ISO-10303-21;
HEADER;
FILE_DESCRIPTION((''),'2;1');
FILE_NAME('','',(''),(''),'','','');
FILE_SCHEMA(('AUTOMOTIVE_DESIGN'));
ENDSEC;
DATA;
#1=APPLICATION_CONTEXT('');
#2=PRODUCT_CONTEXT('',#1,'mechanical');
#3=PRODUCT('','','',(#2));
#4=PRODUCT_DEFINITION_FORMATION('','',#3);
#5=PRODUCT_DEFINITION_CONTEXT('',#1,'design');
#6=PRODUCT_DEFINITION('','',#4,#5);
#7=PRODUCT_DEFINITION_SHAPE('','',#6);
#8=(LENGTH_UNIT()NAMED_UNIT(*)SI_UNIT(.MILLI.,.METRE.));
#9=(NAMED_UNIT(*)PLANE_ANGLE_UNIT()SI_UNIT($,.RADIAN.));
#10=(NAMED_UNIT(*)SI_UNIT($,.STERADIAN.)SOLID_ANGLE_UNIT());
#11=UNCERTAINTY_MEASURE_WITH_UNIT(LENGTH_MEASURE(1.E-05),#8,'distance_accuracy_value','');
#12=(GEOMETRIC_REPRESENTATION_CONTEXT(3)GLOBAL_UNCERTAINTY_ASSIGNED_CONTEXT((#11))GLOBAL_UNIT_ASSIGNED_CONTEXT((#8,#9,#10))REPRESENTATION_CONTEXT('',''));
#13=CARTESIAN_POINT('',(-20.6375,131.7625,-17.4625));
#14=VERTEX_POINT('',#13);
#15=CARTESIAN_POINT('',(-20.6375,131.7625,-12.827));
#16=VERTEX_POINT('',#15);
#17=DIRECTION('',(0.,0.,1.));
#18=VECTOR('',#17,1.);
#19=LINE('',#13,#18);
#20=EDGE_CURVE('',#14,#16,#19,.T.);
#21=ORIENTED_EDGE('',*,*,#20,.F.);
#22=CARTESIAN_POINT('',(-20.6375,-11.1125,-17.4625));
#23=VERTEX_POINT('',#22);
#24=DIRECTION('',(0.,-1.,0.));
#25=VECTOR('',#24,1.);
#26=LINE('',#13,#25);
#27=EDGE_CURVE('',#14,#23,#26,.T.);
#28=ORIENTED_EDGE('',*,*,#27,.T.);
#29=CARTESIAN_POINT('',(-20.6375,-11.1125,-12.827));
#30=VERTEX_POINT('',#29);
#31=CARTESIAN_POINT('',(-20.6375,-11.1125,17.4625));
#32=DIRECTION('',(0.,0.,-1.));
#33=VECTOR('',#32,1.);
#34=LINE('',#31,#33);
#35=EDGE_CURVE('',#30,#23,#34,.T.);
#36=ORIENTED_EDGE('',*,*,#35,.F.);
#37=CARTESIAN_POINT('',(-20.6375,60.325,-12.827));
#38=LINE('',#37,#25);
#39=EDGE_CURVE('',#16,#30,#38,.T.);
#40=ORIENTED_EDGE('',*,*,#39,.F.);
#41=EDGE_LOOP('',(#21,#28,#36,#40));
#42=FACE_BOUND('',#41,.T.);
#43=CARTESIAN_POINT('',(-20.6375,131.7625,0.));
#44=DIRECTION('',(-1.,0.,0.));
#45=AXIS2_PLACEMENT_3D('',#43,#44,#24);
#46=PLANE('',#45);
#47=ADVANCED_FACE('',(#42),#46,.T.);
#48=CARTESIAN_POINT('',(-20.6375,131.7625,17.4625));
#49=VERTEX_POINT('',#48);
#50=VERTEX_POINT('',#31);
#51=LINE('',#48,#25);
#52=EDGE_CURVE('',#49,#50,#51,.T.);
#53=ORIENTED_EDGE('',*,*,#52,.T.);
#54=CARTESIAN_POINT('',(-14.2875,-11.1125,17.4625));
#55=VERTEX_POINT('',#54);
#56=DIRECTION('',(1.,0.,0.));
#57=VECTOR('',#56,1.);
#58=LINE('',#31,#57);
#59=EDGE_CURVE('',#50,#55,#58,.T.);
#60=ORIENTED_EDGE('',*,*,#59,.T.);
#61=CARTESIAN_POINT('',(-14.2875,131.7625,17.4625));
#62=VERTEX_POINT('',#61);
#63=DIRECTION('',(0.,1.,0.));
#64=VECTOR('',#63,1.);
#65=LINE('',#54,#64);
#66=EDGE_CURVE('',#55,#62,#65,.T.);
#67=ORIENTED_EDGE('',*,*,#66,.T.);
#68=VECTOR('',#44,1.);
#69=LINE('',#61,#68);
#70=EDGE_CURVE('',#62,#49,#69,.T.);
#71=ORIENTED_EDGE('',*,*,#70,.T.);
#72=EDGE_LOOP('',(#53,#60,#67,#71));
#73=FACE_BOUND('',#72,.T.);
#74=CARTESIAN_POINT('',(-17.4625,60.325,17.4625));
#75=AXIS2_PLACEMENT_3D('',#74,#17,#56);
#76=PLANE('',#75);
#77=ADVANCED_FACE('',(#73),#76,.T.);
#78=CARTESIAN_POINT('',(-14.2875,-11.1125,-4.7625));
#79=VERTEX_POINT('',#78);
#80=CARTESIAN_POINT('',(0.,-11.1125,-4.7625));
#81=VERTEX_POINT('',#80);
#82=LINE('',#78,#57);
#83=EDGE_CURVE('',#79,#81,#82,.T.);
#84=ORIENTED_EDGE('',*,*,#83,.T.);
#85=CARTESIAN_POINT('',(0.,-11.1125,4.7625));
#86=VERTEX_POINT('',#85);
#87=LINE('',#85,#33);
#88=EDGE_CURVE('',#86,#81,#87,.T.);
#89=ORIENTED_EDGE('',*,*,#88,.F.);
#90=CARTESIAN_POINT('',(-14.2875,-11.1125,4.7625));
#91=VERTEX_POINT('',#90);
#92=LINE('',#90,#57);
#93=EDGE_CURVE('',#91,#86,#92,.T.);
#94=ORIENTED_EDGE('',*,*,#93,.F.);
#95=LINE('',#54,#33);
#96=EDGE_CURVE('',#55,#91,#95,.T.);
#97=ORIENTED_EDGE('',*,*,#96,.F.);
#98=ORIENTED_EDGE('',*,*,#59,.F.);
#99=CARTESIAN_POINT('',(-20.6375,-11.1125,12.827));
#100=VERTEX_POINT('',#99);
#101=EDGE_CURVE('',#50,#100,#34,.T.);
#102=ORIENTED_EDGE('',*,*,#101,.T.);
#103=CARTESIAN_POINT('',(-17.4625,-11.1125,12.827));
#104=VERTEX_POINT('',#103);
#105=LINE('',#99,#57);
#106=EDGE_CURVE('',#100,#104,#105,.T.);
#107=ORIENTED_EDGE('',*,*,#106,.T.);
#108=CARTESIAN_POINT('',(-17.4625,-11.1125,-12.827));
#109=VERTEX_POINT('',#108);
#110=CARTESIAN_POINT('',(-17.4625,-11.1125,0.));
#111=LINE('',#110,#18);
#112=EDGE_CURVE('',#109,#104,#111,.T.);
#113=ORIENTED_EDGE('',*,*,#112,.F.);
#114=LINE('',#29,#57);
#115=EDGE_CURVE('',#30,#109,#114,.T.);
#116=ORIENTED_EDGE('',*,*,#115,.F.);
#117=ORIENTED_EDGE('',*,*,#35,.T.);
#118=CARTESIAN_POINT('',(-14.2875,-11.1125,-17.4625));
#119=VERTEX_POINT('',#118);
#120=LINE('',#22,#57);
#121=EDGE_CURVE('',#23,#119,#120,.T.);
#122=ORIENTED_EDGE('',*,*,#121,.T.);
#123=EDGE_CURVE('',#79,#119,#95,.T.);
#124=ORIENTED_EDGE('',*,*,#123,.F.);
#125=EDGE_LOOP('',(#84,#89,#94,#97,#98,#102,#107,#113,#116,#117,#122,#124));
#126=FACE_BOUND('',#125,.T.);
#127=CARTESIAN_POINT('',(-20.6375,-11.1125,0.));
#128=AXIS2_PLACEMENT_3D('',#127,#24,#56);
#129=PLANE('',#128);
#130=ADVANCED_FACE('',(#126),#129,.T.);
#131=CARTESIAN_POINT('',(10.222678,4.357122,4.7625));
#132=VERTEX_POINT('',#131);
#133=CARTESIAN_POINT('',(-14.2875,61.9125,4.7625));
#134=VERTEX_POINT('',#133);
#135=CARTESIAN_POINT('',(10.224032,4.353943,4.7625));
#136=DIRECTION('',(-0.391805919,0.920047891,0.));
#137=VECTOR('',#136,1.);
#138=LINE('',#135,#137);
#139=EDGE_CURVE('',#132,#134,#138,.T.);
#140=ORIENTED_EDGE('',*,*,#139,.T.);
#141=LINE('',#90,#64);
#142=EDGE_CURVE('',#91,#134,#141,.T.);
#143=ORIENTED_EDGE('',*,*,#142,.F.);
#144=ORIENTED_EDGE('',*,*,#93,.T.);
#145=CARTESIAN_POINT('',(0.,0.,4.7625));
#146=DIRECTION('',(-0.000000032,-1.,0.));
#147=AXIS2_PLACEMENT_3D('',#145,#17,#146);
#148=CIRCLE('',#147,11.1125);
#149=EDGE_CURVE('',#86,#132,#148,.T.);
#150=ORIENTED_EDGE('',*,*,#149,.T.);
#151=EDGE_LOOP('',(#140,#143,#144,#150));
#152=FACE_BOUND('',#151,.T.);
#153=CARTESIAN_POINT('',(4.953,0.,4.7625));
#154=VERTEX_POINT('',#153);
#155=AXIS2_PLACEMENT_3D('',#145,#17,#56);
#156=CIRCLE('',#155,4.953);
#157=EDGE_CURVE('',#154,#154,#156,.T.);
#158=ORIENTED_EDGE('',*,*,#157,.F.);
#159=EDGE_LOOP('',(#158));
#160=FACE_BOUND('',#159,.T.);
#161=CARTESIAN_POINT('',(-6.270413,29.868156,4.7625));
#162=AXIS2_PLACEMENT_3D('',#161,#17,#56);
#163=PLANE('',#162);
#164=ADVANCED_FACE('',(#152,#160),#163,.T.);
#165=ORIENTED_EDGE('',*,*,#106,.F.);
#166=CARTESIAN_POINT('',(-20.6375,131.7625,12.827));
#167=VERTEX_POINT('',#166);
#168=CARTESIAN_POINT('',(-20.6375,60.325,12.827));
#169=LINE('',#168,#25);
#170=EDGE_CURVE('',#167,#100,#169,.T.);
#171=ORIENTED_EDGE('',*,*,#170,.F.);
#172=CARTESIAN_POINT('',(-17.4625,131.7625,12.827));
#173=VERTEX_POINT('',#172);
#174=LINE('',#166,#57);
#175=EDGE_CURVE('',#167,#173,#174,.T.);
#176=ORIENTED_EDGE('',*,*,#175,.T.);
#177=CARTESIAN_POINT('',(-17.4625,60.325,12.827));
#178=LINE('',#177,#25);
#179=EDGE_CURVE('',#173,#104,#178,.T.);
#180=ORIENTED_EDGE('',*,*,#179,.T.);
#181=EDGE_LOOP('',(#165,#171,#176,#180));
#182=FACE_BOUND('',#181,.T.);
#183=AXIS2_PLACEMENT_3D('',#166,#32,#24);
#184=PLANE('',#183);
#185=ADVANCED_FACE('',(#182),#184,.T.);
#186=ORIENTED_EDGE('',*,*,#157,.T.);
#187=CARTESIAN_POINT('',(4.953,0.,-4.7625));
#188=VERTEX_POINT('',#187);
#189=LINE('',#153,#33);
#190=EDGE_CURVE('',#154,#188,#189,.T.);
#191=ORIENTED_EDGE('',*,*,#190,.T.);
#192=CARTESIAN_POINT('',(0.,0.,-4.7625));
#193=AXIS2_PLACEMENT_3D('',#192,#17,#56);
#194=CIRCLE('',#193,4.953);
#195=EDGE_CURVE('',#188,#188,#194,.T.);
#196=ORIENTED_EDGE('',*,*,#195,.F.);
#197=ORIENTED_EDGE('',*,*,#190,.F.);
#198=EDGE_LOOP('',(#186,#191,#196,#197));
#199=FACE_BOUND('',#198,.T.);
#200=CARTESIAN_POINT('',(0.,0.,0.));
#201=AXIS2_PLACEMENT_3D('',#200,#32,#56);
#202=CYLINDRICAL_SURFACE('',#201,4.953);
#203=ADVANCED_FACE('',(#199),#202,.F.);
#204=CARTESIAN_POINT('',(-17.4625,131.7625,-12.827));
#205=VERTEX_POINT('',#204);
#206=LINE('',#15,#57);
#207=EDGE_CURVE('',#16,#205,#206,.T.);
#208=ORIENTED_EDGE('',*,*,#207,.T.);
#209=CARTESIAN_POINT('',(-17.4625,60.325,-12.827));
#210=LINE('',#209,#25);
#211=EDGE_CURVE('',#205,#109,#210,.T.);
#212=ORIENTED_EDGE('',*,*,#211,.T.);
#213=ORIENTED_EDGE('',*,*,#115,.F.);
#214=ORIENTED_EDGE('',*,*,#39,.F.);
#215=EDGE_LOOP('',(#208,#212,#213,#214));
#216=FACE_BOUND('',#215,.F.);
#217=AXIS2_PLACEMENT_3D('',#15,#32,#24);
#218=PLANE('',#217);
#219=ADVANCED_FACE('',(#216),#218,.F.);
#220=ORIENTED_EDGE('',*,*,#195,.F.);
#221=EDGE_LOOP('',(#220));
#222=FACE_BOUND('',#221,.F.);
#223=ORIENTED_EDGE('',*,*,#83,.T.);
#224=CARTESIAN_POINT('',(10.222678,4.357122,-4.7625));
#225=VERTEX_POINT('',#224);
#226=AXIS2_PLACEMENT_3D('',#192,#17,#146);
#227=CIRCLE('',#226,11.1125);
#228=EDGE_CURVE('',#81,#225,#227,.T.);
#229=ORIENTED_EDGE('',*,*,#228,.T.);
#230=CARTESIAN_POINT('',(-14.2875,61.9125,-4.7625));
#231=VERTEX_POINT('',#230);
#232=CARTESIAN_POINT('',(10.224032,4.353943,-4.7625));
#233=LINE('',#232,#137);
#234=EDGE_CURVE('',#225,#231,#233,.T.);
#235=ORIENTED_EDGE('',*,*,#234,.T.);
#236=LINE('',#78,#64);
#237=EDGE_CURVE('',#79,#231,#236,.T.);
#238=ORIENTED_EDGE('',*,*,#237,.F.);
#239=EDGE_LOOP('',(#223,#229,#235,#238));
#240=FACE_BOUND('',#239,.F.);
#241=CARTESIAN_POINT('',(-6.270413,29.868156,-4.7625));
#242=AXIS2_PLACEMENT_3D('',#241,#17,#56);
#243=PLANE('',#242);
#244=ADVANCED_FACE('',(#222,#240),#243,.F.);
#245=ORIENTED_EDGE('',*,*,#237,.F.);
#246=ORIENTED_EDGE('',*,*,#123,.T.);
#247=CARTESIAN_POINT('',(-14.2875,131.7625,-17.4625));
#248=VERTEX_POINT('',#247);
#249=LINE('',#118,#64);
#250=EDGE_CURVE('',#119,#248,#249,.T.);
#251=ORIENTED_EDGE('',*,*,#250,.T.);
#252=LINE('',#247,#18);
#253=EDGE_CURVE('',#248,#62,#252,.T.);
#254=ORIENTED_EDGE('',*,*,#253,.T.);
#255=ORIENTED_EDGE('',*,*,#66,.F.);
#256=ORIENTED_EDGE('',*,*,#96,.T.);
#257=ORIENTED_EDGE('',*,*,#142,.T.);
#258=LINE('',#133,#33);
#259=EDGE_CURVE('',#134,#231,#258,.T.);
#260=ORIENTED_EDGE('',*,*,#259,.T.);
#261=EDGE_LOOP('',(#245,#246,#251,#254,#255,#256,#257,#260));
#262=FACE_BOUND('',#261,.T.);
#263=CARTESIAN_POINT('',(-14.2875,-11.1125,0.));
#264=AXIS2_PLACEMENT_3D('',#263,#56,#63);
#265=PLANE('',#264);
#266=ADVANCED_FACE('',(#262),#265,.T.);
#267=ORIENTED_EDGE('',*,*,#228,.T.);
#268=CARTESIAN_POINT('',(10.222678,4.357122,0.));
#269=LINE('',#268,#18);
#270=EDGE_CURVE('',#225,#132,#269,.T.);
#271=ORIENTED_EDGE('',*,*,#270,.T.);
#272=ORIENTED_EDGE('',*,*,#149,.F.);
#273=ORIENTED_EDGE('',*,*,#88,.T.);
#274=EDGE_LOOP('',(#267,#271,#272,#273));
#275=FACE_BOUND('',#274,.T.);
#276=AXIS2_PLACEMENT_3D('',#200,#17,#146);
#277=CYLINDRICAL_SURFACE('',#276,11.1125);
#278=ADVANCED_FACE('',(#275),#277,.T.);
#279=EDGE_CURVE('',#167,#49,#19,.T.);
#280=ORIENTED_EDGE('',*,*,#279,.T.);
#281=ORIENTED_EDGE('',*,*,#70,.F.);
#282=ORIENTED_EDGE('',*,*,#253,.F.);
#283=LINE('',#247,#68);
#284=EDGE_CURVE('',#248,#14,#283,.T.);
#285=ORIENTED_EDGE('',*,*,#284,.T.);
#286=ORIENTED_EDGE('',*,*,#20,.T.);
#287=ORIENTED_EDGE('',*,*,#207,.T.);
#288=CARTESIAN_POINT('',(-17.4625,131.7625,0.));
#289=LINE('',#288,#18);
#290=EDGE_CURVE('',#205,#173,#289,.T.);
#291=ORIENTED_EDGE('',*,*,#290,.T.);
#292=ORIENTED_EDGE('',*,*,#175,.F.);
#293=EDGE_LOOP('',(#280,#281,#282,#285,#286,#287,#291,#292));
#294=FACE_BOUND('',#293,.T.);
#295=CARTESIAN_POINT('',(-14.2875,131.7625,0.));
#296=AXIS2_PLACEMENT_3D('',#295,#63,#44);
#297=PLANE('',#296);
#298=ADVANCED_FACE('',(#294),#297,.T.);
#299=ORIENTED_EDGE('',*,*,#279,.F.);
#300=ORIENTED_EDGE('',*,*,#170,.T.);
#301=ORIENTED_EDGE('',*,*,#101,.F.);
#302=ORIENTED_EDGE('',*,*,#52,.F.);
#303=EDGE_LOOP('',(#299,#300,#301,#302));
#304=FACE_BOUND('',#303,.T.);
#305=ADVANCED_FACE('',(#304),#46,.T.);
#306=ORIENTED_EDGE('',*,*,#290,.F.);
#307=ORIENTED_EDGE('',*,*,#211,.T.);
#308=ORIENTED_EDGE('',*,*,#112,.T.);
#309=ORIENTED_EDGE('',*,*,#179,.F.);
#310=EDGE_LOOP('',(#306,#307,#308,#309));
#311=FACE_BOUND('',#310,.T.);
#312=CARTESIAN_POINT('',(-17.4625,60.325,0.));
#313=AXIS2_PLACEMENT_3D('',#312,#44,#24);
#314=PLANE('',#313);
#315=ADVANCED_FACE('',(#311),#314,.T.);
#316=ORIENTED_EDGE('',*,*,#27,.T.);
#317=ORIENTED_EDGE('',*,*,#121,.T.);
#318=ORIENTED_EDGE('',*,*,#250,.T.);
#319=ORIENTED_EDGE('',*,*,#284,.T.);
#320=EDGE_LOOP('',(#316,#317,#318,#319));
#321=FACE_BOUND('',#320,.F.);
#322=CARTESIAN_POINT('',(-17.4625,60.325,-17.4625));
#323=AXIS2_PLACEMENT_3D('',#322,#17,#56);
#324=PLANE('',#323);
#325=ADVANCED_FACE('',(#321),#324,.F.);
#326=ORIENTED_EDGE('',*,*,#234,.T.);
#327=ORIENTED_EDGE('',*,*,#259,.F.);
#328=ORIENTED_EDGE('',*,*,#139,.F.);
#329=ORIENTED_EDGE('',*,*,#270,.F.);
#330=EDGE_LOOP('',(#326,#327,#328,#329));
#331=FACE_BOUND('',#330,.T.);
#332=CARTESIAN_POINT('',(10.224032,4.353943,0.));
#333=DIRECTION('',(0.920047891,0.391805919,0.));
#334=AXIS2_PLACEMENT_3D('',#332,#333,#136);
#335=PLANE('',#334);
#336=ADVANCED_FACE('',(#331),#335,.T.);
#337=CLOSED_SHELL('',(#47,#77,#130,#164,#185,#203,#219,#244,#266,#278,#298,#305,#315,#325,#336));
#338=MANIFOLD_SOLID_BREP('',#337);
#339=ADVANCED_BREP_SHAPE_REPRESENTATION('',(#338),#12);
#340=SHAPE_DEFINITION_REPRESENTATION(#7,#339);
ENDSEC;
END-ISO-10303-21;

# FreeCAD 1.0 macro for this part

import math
import FreeCAD as App
import Part
import Sketcher
Q = App.Units.Quantity

doc = App.newDocument("Part")
body = doc.addObject("PartDesign::Body", "Body")

sketch1 = body.newObject("Sketcher::SketchObject", "Sketch")
sketch1.AttachmentSupport = (doc.getObject("XY_Plane"), [""])
sketch1.MapMode = "FlatFace"
sketch1.addGeometry([
    Part.ArcOfCircle(Part.Circle(App.Vector(0.000001, 0.000001, 0), App.Vector(0, 0, 1), 11.112499), math.radians(28.713426), math.radians(90.000004)),
    Part.LineSegment(App.Vector(0, 11.1125, 0), App.Vector(-14.2875, 11.1125, 0)),
    Part.LineSegment(App.Vector(-14.2875, 11.1125, 0), App.Vector(-14.2875, -11.1125, 0)),
    Part.LineSegment(App.Vector(-14.2875, -11.1125, 0), App.Vector(0, -11.1125, 0)),
    Part.ArcOfCircle(Part.Circle(App.Vector(0, 0, 0), App.Vector(0, 0, 1), 11.1125), math.radians(-90.000002), math.radians(28.713429)),
    Part.Circle(App.Vector(0, 0, 0), App.Vector(0, 0, 1), 4.953),
], False)
sketch1.addConstraint([
    Sketcher.Constraint("Tangent", 0, 2, 1, 1),
    Sketcher.Constraint("Coincident", 1, 2, 2, 1),
    Sketcher.Constraint("Coincident", 2, 2, 3, 1),
    Sketcher.Constraint("Tangent", 3, 2, 4, 1),
    Sketcher.Constraint("Tangent", 4, 2, 0, 1),
    Sketcher.Constraint("Horizontal", 1),
    Sketcher.Constraint("Vertical", 2),
    Sketcher.Constraint("Horizontal", 3),
    Sketcher.Constraint("Coincident", 0, 3, -1, 1),
    Sketcher.Constraint("Coincident", 5, 3, -1, 1),
    Sketcher.Constraint("Equal", 0, 4),
    Sketcher.Constraint("Diameter", 5, Q("0.39 in")),
    Sketcher.Constraint("Radius", 0, Q("0.4375 in")),
    Sketcher.Constraint("DistanceX", 1, 2, 1, 1, Q("0.5625 in")),
    Sketcher.Constraint("DistanceY", 4, 3, 4, 2, Q("5.338768 mm")),
])
pad1 = body.newObject("PartDesign::Pad", "Pad")
pad1.Profile = sketch1
pad1.Length = Q("0.375 in")
pad1.Midplane = True

sketch2 = body.newObject("Sketcher::SketchObject", "Sketch001")
sketch2.AttachmentSupport = (doc.getObject("XY_Plane"), [""])
sketch2.MapMode = "FlatFace"
sketch2.addGeometry([
    Part.LineSegment(App.Vector(-14.2875, -11.1125, 0), App.Vector(-14.2875, 131.7625, 0)),
    Part.LineSegment(App.Vector(-14.2875, 131.7625, 0), App.Vector(-20.6375, 131.7625, 0)),
    Part.LineSegment(App.Vector(-20.6375, 131.7625, 0), App.Vector(-20.6375, -11.1125, 0)),
    Part.LineSegment(App.Vector(-20.6375, -11.1125, 0), App.Vector(-14.2875, -11.1125, 0)),
], False)
sketch2.addConstraint([
    Sketcher.Constraint("Coincident", 0, 2, 1, 1),
    Sketcher.Constraint("Coincident", 1, 2, 2, 1),
    Sketcher.Constraint("Coincident", 2, 2, 3, 1),
    Sketcher.Constraint("Coincident", 3, 2, 0, 1),
    Sketcher.Constraint("Vertical", 0),
    Sketcher.Constraint("Horizontal", 1),
    Sketcher.Constraint("Vertical", 2),
    Sketcher.Constraint("Horizontal", 3),
    Sketcher.Constraint("DistanceX", 1, 2, 1, 1, Q("0.25 in")),
    Sketcher.Constraint("DistanceY", 0, 1, 0, 2, Q("5.625 in")),
    Sketcher.Constraint("DistanceX", 0, 2, -1, 1, Q("0.5625 in")),
    Sketcher.Constraint("DistanceY", -1, 1, 0, 2, Q("5.1875 in")),
])
pad2 = body.newObject("PartDesign::Pad", "Pad001")
pad2.Profile = sketch2
pad2.Length = Q("1.375 in")
pad2.Midplane = True

sketch3 = body.newObject("Sketcher::SketchObject", "Sketch002")
sketch3.AttachmentSupport = (doc.getObject("YZ_Plane"), [""])
sketch3.MapMode = "FlatFace"
sketch3.AttachmentOffset = App.Placement(App.Vector(0, 0, -0.8125 * 25.4), App.Rotation())
sketch3.addGeometry([
    Part.LineSegment(App.Vector(131.7625, 12.827, 0), App.Vector(131.7625, -12.827, 0)),
    Part.LineSegment(App.Vector(131.7625, -12.827, 0), App.Vector(-11.1125, -12.827, 0)),
    Part.LineSegment(App.Vector(-11.1125, -12.827, 0), App.Vector(-11.1125, 12.827, 0)),
    Part.LineSegment(App.Vector(-11.1125, 12.827, 0), App.Vector(131.7625, 12.827, 0)),
], False)
sketch3.addConstraint([
    Sketcher.Constraint("Coincident", 0, 2, 1, 1),
    Sketcher.Constraint("Coincident", 1, 2, 2, 1),
    Sketcher.Constraint("Coincident", 2, 2, 3, 1),
    Sketcher.Constraint("Coincident", 3, 2, 0, 1),
    Sketcher.Constraint("Vertical", 0),
    Sketcher.Constraint("Horizontal", 1),
    Sketcher.Constraint("Vertical", 2),
    Sketcher.Constraint("Horizontal", 3),
    Sketcher.Constraint("DistanceY", 0, 2, 0, 1, Q("1.01 in")),
    Sketcher.Constraint("DistanceX", 1, 2, 1, 1, Q("5.625 in")),
    Sketcher.Constraint("DistanceX", -1, 1, 0, 2, Q("5.1875 in")),
    Sketcher.Constraint("DistanceY", 0, 2, -1, 1, Q("0.505 in")),
])
pocket1 = body.newObject("PartDesign::Pocket", "Pocket")
pocket1.Profile = sketch3
pocket1.Length = Q("0.125 in")
pocket1.Reversed = True

sketch4 = body.newObject("Sketcher::SketchObject", "Sketch003")
sketch4.AttachmentSupport = (doc.getObject("XY_Plane"), [""])
sketch4.MapMode = "FlatFace"
sketch4.addGeometry([
    Part.LineSegment(App.Vector(-14.2875, 11.1125, 0), App.Vector(0, 11.1125, 0)),
    Part.ArcOfCircle(Part.Circle(App.Vector(-0.000001, -0.000001, 0), App.Vector(0, 0, 1), 11.112501), math.radians(23.066919), math.radians(89.999994)),
    Part.LineSegment(App.Vector(10.224032, 4.353943, 0), App.Vector(-14.2875, 61.9125, 0)),
    Part.LineSegment(App.Vector(-14.2875, 61.9125, 0), App.Vector(-14.2875, 11.1125, 0)),
], False)
sketch4.addConstraint([
    Sketcher.Constraint("Tangent", 0, 2, 1, 2),
    Sketcher.Constraint("Tangent", 1, 1, 2, 1),
    Sketcher.Constraint("Coincident", 2, 2, 3, 1),
    Sketcher.Constraint("Coincident", 3, 2, 0, 1),
    Sketcher.Constraint("Horizontal", 0),
    Sketcher.Constraint("Vertical", 3),
    Sketcher.Constraint("Coincident", 1, 3, -1, 1),
    Sketcher.Constraint("DistanceY", 3, 2, 3, 1, Q("2 in")),
    Sketcher.Constraint("Radius", 1, Q("0.4375001 in")),
    Sketcher.Constraint("DistanceX", 0, 1, 0, 2, Q("0.5625 in")),
])
pad3 = body.newObject("PartDesign::Pad", "Pad002")
pad3.Profile = sketch4
pad3.Length = Q("0.375 in")
pad3.Midplane = True
body2 = doc.addObject("PartDesign::Body", "Body001")

sketch5 = body2.newObject("Sketcher::SketchObject", "Sketch004")
sketch5.AttachmentSupport = (doc.getObject("XY_Plane001"), [""])
sketch5.MapMode = "FlatFace"
sketch5.addGeometry([
    Part.LineSegment(App.Vector(-14.2875, 11.1125, 0), App.Vector(0, 11.1125, 0)),
    Part.ArcOfCircle(Part.Circle(App.Vector(-0.000001, -0.000001, 0), App.Vector(0, 0, 1), 11.112501), math.radians(23.066919), math.radians(89.999994)),
    Part.LineSegment(App.Vector(10.224032, 4.353943, 0), App.Vector(-14.2875, 61.9125, 0)),
    Part.LineSegment(App.Vector(-14.2875, 61.9125, 0), App.Vector(-14.2875, 11.1125, 0)),
], False)
sketch5.addConstraint([
    Sketcher.Constraint("Tangent", 0, 2, 1, 2),
    Sketcher.Constraint("Tangent", 1, 1, 2, 1),
    Sketcher.Constraint("Coincident", 2, 2, 3, 1),
    Sketcher.Constraint("Coincident", 3, 2, 0, 1),
    Sketcher.Constraint("Horizontal", 0),
    Sketcher.Constraint("Vertical", 3),
    Sketcher.Constraint("Coincident", 1, 3, -1, 1),
    Sketcher.Constraint("DistanceY", 3, 2, 3, 1, Q("2 in")),
    Sketcher.Constraint("Radius", 1, Q("0.4375001 in")),
    Sketcher.Constraint("DistanceX", 0, 1, 0, 2, Q("0.5625 in")),
])
pad4 = body2.newObject("PartDesign::Pad", "Pad003")
pad4.Profile = sketch5
pad4.Length = Q("0.375 in")
pad4.Midplane = True
body2.Visibility = False

doc.recompute()
